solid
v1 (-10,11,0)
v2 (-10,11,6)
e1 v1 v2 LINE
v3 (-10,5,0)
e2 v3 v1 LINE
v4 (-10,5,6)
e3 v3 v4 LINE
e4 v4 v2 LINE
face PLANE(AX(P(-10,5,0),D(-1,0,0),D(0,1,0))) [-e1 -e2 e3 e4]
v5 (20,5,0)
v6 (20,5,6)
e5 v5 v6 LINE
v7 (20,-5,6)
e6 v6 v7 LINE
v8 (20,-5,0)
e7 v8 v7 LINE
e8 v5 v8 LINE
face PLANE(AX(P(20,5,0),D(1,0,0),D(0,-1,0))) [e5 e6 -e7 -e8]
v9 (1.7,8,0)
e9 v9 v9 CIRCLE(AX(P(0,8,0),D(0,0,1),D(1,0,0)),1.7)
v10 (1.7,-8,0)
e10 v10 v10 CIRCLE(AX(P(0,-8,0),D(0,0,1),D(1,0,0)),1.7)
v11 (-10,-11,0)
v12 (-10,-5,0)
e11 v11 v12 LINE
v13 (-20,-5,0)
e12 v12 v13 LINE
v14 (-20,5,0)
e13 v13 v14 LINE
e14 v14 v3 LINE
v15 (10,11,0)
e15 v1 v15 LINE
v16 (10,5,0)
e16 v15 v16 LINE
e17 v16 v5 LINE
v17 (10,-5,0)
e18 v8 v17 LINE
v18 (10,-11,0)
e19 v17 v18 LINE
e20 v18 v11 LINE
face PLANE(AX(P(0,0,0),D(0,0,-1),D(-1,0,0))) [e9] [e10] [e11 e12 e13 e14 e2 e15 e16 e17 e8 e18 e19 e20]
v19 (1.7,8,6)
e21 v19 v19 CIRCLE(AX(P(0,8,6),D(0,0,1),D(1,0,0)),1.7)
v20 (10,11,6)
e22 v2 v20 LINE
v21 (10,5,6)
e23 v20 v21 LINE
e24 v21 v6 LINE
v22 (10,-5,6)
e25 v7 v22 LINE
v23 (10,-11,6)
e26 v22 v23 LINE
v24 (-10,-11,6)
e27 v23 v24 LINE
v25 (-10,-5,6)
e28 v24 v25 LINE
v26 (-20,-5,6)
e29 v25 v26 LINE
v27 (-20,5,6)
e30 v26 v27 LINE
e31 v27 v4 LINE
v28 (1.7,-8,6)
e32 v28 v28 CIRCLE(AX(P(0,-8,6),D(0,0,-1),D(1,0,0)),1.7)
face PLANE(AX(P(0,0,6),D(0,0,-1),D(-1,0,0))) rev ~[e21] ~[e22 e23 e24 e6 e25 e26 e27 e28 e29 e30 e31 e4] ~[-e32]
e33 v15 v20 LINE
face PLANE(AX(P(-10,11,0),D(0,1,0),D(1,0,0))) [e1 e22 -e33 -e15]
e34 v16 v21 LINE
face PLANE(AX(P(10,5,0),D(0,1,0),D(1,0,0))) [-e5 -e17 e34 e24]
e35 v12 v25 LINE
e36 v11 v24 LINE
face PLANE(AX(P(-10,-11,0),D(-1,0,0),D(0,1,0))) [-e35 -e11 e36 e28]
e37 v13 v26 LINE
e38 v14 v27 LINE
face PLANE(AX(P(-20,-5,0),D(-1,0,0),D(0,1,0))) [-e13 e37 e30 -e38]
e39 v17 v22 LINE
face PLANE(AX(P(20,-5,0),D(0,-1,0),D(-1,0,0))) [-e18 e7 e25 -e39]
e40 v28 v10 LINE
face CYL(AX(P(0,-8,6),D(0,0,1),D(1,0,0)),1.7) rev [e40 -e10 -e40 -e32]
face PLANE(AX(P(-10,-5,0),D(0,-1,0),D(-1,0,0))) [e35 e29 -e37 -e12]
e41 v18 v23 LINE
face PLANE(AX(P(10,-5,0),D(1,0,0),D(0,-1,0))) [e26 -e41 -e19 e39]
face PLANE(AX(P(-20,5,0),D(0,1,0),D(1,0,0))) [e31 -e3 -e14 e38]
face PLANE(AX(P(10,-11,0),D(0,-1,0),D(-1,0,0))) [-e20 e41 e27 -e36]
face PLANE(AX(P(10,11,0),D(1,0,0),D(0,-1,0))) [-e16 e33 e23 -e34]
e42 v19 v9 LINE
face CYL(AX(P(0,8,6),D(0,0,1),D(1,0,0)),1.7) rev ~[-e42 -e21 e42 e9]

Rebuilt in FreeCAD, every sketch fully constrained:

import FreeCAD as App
import Part
import Sketcher
from FreeCAD import Vector


def add_polygon(sketch, points):
    """Adds a closed chain of lines whose ends are joined by coincident constraints."""
    first, n = sketch.GeometryCount, len(points)
    for a, b in zip(points, points[1:] + points[:1]):
        sketch.addGeometry(Part.LineSegment(App.Vector(*a, 0), App.Vector(*b, 0)), False)
    for i in range(n):
        sketch.addConstraint(Sketcher.Constraint("Coincident", first + i, 2, first + (i + 1) % n, 1))

doc = App.newDocument("Part")
body = doc.addObject("PartDesign::Body", "Body")

# Sketch on XY plane
sketch1 = body.newObject("Sketcher::SketchObject", "Sketch")
sketch1.AttachmentSupport = (doc.getObject("XY_Plane"), [""])
sketch1.MapMode = "FlatFace"
add_polygon(sketch1, [(-20, 5), (-20, -5), (-10, -5), (-10, -11), (10, -11), (10, -5), (20, -5), (20, 5), (10, 5), (10, 11), (-10, 11), (-10, 5)])  # lines 0-11
sketch1.addConstraint([
    Sketcher.Constraint("Vertical", 0),
    Sketcher.Constraint("Horizontal", 1),
    Sketcher.Constraint("Vertical", 2),
    Sketcher.Constraint("Horizontal", 3),
    Sketcher.Constraint("Vertical", 4),
    Sketcher.Constraint("Horizontal", 5),
    Sketcher.Constraint("Vertical", 6),
    Sketcher.Constraint("Horizontal", 7),
    Sketcher.Constraint("Vertical", 8),
    Sketcher.Constraint("Horizontal", 9),
    Sketcher.Constraint("Vertical", 10),
    Sketcher.Constraint("Horizontal", 11),
    Sketcher.Constraint("Symmetric", 0, 2, 6, 2, -1, 1),
    Sketcher.Constraint("Symmetric", 2, 2, 8, 2, -1, 1),
    Sketcher.Constraint("Symmetric", 4, 2, 10, 2, -1, 1),
    Sketcher.Constraint("Symmetric", 1, 2, 4, 2, -2),
    Sketcher.Constraint("Equal", 11, 0),
    Sketcher.Constraint("DistanceX", 1, 1, 1, 2, 10.0),
    Sketcher.Constraint("DistanceX", 3, 1, 3, 2, 20.0),
    Sketcher.Constraint("DistanceY", 2, 2, 2, 1, 6.0),
])
pad1 = body.newObject("PartDesign::Pad", "Pad")
pad1.Profile = sketch1
pad1.Length = 6

# Sketch on XY plane
sketch2 = body.newObject("Sketcher::SketchObject", "Sketch001")
sketch2.AttachmentSupport = (doc.getObject("XY_Plane"), [""])
sketch2.MapMode = "FlatFace"
sketch2.AttachmentOffset = App.Placement(Vector(0, 0, 6), App.Rotation())
sketch2.addGeometry(Part.Circle(Vector(0, 8, 0), Vector(0, 0, 1), 1.7), False)
sketch2.addConstraint([
    Sketcher.Constraint("PointOnObject", 0, 3, -2),
    Sketcher.Constraint("Diameter", 0, 3.4),
    Sketcher.Constraint("DistanceY", -1, 1, 0, 3, 8.0),
])
pocket1 = body.newObject("PartDesign::Pocket", "Pocket")
pocket1.Profile = sketch2
pocket1.Type = "ThroughAll"
doc.recompute()

mirrored = body.newObject("PartDesign::Mirrored", "Mirrored")
mirrored.Originals = [pocket1]
mirrored.MirrorPlane = (doc.getObject("XZ_Plane"), [""])
body.Tip = mirrored

doc.recompute()
